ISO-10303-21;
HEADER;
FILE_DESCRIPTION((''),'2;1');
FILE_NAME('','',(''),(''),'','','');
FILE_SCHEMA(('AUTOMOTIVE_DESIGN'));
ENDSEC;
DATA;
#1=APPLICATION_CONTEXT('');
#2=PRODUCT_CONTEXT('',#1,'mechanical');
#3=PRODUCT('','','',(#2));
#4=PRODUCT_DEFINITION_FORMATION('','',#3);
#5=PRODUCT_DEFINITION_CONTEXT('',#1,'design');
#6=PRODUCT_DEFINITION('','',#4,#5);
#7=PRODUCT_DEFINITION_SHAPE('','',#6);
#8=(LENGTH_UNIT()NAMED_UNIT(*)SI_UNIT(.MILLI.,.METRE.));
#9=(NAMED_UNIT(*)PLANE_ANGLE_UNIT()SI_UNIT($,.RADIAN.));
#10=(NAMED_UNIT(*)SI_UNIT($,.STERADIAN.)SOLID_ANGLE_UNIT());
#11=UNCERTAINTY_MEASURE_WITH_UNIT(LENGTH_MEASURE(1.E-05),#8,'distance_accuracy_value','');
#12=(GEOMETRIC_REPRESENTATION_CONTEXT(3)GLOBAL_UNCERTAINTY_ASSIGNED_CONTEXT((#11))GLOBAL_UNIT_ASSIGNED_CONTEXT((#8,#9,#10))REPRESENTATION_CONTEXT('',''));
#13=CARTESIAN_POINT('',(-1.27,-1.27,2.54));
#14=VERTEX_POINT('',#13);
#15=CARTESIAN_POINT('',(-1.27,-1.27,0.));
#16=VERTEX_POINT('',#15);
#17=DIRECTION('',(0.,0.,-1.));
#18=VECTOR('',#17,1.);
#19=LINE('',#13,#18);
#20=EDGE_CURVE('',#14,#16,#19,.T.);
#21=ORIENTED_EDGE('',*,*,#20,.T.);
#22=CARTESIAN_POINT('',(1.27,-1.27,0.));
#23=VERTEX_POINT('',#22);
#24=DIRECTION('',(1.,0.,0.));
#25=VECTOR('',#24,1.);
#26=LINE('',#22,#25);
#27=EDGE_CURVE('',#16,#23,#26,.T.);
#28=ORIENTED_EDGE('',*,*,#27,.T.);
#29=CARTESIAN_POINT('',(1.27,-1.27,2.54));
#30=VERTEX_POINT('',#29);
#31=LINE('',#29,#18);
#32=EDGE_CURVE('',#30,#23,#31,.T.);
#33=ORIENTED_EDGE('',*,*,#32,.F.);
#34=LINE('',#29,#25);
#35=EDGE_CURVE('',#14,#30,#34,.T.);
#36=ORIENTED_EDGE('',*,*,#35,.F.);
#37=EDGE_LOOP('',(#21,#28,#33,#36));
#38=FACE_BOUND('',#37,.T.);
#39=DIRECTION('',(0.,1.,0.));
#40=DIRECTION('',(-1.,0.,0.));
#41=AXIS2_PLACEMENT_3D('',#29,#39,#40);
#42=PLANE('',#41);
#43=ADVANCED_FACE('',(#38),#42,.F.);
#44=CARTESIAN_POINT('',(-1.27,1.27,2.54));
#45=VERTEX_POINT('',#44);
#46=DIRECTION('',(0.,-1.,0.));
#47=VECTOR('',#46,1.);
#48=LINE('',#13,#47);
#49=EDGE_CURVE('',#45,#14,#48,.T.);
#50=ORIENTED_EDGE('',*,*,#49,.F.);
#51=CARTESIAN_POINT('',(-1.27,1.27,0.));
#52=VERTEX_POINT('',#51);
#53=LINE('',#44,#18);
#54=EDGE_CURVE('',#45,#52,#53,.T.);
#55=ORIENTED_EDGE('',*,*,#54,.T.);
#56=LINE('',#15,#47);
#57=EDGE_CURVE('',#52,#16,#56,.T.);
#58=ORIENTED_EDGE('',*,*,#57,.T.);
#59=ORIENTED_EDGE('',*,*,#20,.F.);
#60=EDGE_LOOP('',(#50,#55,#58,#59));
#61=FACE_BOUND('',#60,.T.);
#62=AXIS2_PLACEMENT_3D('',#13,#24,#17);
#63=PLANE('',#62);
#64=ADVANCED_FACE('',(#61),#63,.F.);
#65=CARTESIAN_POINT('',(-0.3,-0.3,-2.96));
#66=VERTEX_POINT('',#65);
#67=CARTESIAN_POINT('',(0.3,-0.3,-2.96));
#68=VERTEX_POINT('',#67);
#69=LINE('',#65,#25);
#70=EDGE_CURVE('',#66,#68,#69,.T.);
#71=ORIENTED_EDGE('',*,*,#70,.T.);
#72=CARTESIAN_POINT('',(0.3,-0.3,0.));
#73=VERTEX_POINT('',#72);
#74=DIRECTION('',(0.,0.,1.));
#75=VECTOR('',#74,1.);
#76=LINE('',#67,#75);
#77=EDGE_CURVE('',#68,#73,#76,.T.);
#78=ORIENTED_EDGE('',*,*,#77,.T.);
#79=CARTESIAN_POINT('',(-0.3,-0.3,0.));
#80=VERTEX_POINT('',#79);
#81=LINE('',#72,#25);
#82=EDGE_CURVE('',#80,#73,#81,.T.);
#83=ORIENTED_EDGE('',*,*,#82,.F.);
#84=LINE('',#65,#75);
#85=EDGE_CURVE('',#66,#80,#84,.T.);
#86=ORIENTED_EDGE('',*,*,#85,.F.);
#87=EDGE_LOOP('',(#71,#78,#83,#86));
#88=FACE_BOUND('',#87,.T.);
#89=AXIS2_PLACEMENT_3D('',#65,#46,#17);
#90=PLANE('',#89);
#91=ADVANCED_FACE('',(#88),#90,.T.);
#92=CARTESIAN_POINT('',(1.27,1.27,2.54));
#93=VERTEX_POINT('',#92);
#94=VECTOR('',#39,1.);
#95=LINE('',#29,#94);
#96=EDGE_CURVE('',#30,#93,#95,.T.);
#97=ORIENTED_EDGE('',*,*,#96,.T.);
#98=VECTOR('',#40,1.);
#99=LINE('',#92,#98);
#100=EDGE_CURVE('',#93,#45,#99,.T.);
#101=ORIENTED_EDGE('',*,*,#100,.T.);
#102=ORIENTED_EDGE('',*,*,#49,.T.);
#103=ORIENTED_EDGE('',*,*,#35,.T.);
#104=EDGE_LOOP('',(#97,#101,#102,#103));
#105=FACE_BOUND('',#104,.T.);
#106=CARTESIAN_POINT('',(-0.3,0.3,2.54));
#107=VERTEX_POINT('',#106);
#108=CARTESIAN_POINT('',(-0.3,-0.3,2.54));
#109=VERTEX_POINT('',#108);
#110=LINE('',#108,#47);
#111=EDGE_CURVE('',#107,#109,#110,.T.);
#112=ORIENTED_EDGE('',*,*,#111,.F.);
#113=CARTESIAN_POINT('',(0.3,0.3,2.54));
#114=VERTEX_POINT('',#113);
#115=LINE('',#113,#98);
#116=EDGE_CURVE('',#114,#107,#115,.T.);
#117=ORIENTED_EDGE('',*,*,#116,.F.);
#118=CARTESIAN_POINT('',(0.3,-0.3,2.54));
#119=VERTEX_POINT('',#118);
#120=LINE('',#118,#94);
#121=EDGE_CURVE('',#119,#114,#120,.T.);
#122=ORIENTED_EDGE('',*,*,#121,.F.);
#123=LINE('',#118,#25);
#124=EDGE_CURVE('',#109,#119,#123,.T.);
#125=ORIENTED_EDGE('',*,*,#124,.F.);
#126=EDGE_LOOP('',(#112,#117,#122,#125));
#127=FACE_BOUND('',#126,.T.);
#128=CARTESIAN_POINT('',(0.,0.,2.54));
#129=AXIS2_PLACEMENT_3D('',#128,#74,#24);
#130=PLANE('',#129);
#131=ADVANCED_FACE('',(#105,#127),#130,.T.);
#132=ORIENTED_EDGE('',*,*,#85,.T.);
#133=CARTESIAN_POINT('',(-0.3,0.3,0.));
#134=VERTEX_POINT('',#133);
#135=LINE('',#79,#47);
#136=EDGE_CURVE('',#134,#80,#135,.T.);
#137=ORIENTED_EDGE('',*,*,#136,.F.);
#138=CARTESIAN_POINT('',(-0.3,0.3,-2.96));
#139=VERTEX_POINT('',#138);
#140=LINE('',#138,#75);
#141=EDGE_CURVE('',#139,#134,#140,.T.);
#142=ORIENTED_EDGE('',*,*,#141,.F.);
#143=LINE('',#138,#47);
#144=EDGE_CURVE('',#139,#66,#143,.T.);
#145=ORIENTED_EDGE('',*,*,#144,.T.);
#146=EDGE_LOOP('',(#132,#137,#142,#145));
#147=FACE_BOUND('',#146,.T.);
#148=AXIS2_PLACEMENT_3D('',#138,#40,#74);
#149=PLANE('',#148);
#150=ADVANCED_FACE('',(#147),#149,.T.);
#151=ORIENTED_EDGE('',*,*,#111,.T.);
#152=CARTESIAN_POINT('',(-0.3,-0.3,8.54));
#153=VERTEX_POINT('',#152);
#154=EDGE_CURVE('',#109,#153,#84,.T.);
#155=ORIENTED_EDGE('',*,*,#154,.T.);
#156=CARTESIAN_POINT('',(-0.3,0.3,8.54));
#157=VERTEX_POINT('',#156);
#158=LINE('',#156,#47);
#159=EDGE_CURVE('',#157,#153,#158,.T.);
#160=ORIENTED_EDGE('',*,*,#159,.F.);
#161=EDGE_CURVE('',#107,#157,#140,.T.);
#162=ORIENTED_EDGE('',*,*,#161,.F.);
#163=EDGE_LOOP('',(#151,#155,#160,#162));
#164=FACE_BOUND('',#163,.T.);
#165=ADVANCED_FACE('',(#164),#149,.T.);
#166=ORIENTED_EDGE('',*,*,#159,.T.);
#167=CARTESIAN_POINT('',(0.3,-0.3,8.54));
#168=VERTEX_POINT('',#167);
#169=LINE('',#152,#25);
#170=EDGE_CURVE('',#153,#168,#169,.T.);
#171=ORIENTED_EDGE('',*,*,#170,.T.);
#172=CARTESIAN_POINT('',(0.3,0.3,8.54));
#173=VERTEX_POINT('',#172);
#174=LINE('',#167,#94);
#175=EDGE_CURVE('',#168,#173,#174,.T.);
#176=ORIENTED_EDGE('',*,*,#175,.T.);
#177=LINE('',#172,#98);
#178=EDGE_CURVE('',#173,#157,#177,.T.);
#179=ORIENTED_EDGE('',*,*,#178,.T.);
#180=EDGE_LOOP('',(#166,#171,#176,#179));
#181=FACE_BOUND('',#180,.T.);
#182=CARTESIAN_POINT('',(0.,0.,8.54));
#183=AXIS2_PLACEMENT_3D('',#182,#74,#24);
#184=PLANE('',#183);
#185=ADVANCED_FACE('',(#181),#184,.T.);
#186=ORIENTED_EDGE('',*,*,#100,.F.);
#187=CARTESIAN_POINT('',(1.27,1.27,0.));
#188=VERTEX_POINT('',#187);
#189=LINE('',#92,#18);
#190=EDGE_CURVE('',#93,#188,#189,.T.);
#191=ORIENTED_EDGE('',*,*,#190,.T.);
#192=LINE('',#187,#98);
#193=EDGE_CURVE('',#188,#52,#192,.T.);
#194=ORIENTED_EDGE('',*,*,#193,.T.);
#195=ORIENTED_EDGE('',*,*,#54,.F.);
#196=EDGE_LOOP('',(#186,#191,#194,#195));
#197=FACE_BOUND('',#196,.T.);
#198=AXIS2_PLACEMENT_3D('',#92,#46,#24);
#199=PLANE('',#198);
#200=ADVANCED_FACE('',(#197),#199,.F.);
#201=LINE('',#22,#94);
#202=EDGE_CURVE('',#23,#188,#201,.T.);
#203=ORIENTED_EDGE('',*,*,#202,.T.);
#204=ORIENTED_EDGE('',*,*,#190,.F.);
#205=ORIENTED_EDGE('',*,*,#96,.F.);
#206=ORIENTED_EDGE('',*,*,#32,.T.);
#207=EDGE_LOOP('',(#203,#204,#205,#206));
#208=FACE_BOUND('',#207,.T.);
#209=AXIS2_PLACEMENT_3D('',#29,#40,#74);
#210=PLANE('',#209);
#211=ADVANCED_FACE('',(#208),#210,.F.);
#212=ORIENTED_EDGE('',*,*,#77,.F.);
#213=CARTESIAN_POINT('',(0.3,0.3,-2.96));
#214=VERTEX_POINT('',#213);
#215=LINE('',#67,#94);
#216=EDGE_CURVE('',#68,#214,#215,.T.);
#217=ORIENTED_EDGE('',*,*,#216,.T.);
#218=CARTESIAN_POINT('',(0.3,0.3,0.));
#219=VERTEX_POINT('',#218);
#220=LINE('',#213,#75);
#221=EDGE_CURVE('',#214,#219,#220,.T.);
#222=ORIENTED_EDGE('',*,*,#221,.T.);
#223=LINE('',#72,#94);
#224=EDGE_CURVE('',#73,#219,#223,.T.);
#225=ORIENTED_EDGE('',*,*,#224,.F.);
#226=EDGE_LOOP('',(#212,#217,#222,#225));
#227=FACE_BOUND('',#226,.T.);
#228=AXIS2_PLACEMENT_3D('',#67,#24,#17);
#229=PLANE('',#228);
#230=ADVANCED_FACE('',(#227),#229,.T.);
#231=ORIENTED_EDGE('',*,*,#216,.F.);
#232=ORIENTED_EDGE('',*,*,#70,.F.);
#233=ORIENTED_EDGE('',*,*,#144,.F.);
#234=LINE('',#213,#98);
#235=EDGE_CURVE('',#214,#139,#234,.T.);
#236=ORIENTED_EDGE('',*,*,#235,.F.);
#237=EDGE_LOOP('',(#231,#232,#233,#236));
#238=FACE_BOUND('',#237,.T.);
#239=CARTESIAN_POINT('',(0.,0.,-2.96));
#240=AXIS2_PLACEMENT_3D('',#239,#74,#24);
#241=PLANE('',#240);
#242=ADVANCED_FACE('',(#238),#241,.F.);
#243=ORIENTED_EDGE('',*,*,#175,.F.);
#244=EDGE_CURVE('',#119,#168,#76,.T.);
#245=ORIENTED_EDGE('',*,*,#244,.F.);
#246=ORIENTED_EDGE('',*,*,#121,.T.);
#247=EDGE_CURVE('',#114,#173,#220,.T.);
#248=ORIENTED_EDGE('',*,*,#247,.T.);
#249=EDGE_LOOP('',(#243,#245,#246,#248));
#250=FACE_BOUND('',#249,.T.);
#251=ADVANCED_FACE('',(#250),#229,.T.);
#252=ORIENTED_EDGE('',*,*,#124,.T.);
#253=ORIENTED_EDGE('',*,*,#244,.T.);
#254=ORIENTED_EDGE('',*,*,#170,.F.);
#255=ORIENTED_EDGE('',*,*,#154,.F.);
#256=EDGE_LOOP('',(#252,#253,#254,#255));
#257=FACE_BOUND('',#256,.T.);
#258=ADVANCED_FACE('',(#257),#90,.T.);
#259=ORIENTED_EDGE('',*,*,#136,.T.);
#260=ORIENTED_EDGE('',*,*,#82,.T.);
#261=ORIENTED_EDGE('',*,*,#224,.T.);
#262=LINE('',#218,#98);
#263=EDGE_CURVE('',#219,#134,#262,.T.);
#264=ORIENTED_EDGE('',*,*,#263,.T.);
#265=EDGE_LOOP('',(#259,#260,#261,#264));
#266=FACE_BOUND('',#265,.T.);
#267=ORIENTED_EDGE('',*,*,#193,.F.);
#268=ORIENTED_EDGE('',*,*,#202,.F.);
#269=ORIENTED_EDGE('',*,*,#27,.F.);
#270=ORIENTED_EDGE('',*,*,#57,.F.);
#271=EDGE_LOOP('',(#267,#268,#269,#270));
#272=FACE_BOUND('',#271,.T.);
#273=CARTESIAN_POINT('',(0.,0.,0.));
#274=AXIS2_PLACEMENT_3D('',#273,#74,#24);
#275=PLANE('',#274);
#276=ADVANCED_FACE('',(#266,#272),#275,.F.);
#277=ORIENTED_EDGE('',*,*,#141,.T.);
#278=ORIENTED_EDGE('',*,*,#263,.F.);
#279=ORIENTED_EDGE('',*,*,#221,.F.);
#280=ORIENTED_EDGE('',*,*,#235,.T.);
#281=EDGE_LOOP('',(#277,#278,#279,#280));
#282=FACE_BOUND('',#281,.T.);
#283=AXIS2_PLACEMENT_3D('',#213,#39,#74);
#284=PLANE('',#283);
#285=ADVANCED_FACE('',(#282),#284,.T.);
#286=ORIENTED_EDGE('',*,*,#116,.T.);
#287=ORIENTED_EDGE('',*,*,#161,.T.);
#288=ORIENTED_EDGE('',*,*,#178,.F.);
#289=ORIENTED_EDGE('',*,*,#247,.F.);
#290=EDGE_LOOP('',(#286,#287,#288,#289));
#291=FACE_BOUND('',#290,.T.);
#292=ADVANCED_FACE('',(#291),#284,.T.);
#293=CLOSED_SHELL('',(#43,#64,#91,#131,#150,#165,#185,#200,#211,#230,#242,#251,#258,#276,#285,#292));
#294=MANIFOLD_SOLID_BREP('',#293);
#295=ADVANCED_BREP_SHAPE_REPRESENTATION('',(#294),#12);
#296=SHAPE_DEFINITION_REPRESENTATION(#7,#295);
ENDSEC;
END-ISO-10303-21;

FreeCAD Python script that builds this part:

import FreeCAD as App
import Part
import Sketcher

V = App.Vector

doc = App.newDocument("Part")
body = doc.addObject("PartDesign::Body", "Body")

# Sketch on XY plane
sketch1 = body.newObject("Sketcher::SketchObject", "Sketch")
sketch1.AttachmentSupport = (doc.getObject("XY_Plane"), [""])
sketch1.MapMode = "FlatFace"
sketch1.addGeometry(Part.LineSegment(V(-1.3, 1.3, 0), V(-1.3, -1.3, 0)), False)
sketch1.addGeometry(Part.LineSegment(V(-1.3, -1.3, 0), V(1.3, -1.3, 0)), False)
sketch1.addGeometry(Part.LineSegment(V(1.3, -1.3, 0), V(1.3, 1.3, 0)), False)
sketch1.addGeometry(Part.LineSegment(V(1.3, 1.3, 0), V(-1.3, 1.3, 0)), False)
sketch1.addGeometry(Part.LineSegment(V(0.3, -0.3, 0), V(-0.3, -0.3, 0)), False)
sketch1.addGeometry(Part.LineSegment(V(-0.3, -0.3, 0), V(-0.3, 0.3, 0)), False)
sketch1.addGeometry(Part.LineSegment(V(-0.3, 0.3, 0), V(0.3, 0.3, 0)), False)
sketch1.addGeometry(Part.LineSegment(V(0.3, 0.3, 0), V(0.3, -0.3, 0)), False)
sketch1.addConstraint(Sketcher.Constraint("Coincident", 0, 2, 1, 1))
sketch1.addConstraint(Sketcher.Constraint("Coincident", 1, 2, 2, 1))
sketch1.addConstraint(Sketcher.Constraint("Coincident", 2, 2, 3, 1))
sketch1.addConstraint(Sketcher.Constraint("Coincident", 3, 2, 0, 1))
sketch1.addConstraint(Sketcher.Constraint("Coincident", 4, 2, 5, 1))
sketch1.addConstraint(Sketcher.Constraint("Coincident", 5, 2, 6, 1))
sketch1.addConstraint(Sketcher.Constraint("Coincident", 6, 2, 7, 1))
sketch1.addConstraint(Sketcher.Constraint("Coincident", 7, 2, 4, 1))
sketch1.addConstraint(Sketcher.Constraint("Vertical", 0))
sketch1.addConstraint(Sketcher.Constraint("Horizontal", 1))
sketch1.addConstraint(Sketcher.Constraint("Vertical", 2))
sketch1.addConstraint(Sketcher.Constraint("Horizontal", 3))
sketch1.addConstraint(Sketcher.Constraint("Horizontal", 4))
sketch1.addConstraint(Sketcher.Constraint("Vertical", 5))
sketch1.addConstraint(Sketcher.Constraint("Horizontal", 6))
sketch1.addConstraint(Sketcher.Constraint("Vertical", 7))
sketch1.addConstraint(Sketcher.Constraint("Symmetric", 0, 2, 2, 2, -1, 1))
sketch1.addConstraint(Sketcher.Constraint("Symmetric", 4, 2, 6, 2, -1, 1))
sketch1.addConstraint(Sketcher.Constraint("Equal", 3, 0))
sketch1.addConstraint(Sketcher.Constraint("Equal", 6, 5))
sketch1.addConstraint(Sketcher.Constraint("DistanceX", 4, 2, 4, 1, 0.6))
sketch1.addConstraint(Sketcher.Constraint("DistanceX", 1, 1, 1, 2, 2.54))
pad1 = body.newObject("PartDesign::Pad", "Pad")
pad1.Profile = sketch1
pad1.Length = 2.54

# Sketch on XY plane
sketch2 = body.newObject("Sketcher::SketchObject", "Sketch001")
sketch2.AttachmentSupport = (doc.getObject("XY_Plane"), [""])
sketch2.MapMode = "FlatFace"
sketch2.AttachmentOffset = App.Placement(V(0, 0, 2.54), App.Rotation())
sketch2.addGeometry(Part.LineSegment(V(-0.3, 0.3, 0), V(-0.3, -0.3, 0)), False)
sketch2.addGeometry(Part.LineSegment(V(-0.3, -0.3, 0), V(0.3, -0.3, 0)), False)
sketch2.addGeometry(Part.LineSegment(V(0.3, -0.3, 0), V(0.3, 0.3, 0)), False)
sketch2.addGeometry(Part.LineSegment(V(0.3, 0.3, 0), V(-0.3, 0.3, 0)), False)
sketch2.addConstraint(Sketcher.Constraint("Coincident", 0, 2, 1, 1))
sketch2.addConstraint(Sketcher.Constraint("Coincident", 1, 2, 2, 1))
sketch2.addConstraint(Sketcher.Constraint("Coincident", 2, 2, 3, 1))
sketch2.addConstraint(Sketcher.Constraint("Coincident", 3, 2, 0, 1))
sketch2.addConstraint(Sketcher.Constraint("Vertical", 0))
sketch2.addConstraint(Sketcher.Constraint("Horizontal", 1))
sketch2.addConstraint(Sketcher.Constraint("Vertical", 2))
sketch2.addConstraint(Sketcher.Constraint("Horizontal", 3))
sketch2.addConstraint(Sketcher.Constraint("Symmetric", 0, 2, 2, 2, -1, 1))
sketch2.addConstraint(Sketcher.Constraint("Equal", 3, 0))
sketch2.addConstraint(Sketcher.Constraint("DistanceX", 1, 1, 1, 2, 0.6))
pad2 = body.newObject("PartDesign::Pad", "Pad001")
pad2.Profile = sketch2
pad2.Type = "TwoLengths"
pad2.Length = 6
pad2.Length2 = 5.5

doc.recompute()
